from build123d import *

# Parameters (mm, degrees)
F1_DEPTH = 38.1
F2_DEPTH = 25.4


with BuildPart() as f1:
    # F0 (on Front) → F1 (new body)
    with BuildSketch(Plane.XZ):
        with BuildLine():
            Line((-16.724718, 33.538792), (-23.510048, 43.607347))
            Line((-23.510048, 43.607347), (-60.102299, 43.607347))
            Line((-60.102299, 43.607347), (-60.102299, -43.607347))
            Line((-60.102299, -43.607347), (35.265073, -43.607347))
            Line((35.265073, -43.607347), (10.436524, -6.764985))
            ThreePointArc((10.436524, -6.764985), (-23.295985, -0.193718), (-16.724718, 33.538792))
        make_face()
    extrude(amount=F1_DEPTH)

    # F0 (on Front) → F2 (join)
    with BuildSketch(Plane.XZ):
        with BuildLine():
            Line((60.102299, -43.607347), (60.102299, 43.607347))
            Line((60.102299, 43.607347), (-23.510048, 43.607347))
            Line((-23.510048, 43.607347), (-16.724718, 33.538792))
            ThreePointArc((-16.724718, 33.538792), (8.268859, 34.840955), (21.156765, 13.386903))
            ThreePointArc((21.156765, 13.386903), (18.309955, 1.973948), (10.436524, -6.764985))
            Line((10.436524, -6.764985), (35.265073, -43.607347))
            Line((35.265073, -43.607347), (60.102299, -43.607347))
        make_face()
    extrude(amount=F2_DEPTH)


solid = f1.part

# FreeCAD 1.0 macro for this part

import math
import FreeCAD as App
import Part
import Sketcher
from FreeCAD import Vector
Q = App.Units.Quantity

doc = App.newDocument("Part")
body = doc.addObject("PartDesign::Body", "Body")

# Sketch on XZ plane
sketch1 = body.newObject("Sketcher::SketchObject", "Sketch")
sketch1.AttachmentSupport = (doc.getObject("XZ_Plane"), [""])
sketch1.MapMode = "FlatFace"
sketch1.addGeometry([
    Part.LineSegment(Vector(-16.724718, 33.538792, 0), Vector(-23.510048, 43.607347, 0)),  # 0
    Part.LineSegment(Vector(-23.510048, 43.607347, 0), Vector(-60.102299, 43.607347, 0)),  # 1
    Part.LineSegment(Vector(-60.102299, 43.607347, 0), Vector(-60.102299, -43.607347, 0)),  # 2
    Part.LineSegment(Vector(-60.102299, -43.607347, 0), Vector(35.265073, -43.607347, 0)),  # 3
    Part.LineSegment(Vector(35.265073, -43.607347, 0), Vector(10.436524, -6.764985, 0)),  # 4
    Part.ArcOfCircle(Part.Circle(Vector(-3.144097, 13.386904, 0), Vector(0, 0, 1), 24.300862), math.radians(123.976545), math.radians(303.976545)),  # 5
], False)
sketch1.addConstraint([
    Sketcher.Constraint("Coincident", 0, 2, 1, 1),
    Sketcher.Constraint("Coincident", 1, 2, 2, 1),
    Sketcher.Constraint("Coincident", 2, 2, 3, 1),
    Sketcher.Constraint("Coincident", 3, 2, 4, 1),
    Sketcher.Constraint("Coincident", 4, 2, 5, 2),
    Sketcher.Constraint("Coincident", 5, 1, 0, 1),
    Sketcher.Constraint("Horizontal", 1),
    Sketcher.Constraint("Vertical", 2),
    Sketcher.Constraint("Horizontal", 3),
    Sketcher.Constraint("Parallel", 0, 4),
    Sketcher.Constraint("Radius", 5, Q("24.300862 mm")),
    Sketcher.Constraint("DistanceY", 5, 1, 0, 2, Q("0.3963998 in")),
    Sketcher.Constraint("DistanceX", 1, 2, 1, 1, Q("36.592251 mm")),
    Sketcher.Constraint("DistanceX", 1, 2, -1, 1, Q("60.102299 mm")),
    Sketcher.Constraint("Distance", 0, Q("12.14152 mm")),
    Sketcher.Constraint("DistanceX", 3, 1, 3, 2, Q("95.367372 mm")),
    Sketcher.Constraint("DistanceY", 2, 2, 2, 1, Q("87.214694 mm")),
    Sketcher.Constraint("DistanceX", 0, 2, 5, 3, Q("20.365951 mm")),
    Sketcher.Constraint("DistanceY", -1, 1, 5, 3, Q("13.386904 mm")),
])
pad1 = body.newObject("PartDesign::Pad", "Pad")
pad1.Profile = sketch1
pad1.Length = Q("1.5 in")

# Sketch on XZ plane
sketch2 = body.newObject("Sketcher::SketchObject", "Sketch001")
sketch2.AttachmentSupport = (doc.getObject("XZ_Plane"), [""])
sketch2.MapMode = "FlatFace"
sketch2.addGeometry([
    Part.LineSegment(Vector(60.102299, -43.607347, 0), Vector(60.102299, 43.607347, 0)),  # 0
    Part.LineSegment(Vector(60.102299, 43.607347, 0), Vector(-23.510048, 43.607347, 0)),  # 1
    Part.LineSegment(Vector(-23.510048, 43.607347, 0), Vector(-16.724718, 33.538792, 0)),  # 2
    Part.ArcOfCircle(Part.Circle(Vector(-3.144097, 13.386904, 0), Vector(0, 0, 1), 24.300862), math.radians(-0.000001), math.radians(123.976546)),  # 3
    Part.ArcOfCircle(Part.Circle(Vector(-3.144094, 13.386903, 0), Vector(0, 0, 1), 24.300859), math.radians(-56.023459), math.radians(0.000001)),  # 4
    Part.LineSegment(Vector(10.436524, -6.764985, 0), Vector(35.265073, -43.607347, 0)),  # 5
    Part.LineSegment(Vector(35.265073, -43.607347, 0), Vector(60.102299, -43.607347, 0)),  # 6
], False)
sketch2.addConstraint([
    Sketcher.Constraint("Coincident", 0, 2, 1, 1),
    Sketcher.Constraint("Coincident", 1, 2, 2, 1),
    Sketcher.Constraint("Coincident", 2, 2, 3, 2),
    Sketcher.Constraint("Tangent", 3, 1, 4, 2),
    Sketcher.Constraint("Coincident", 4, 1, 5, 1),
    Sketcher.Constraint("Coincident", 5, 2, 6, 1),
    Sketcher.Constraint("Coincident", 6, 2, 0, 1),
    Sketcher.Constraint("Vertical", 0),
    Sketcher.Constraint("Horizontal", 1),
    Sketcher.Constraint("Horizontal", 6),
    Sketcher.Constraint("Parallel", 2, 5),
    Sketcher.Constraint("Horizontal", 4, 3, 3, 1),
    Sketcher.Constraint("Radius", 3, Q("24.300862 mm")),
    Sketcher.Constraint("Radius", 4, Q("24.300859 mm")),
    Sketcher.Constraint("DistanceY", 2, 2, 1, 2, Q("0.3963998 in")),
    Sketcher.Constraint("DistanceX", -1, 1, 0, 2, Q("60.102299 mm")),
    Sketcher.Constraint("Distance", 2, Q("12.14152 mm")),
    Sketcher.Constraint("DistanceX", 1, 2, 1, 1, Q("83.612347 mm")),
    Sketcher.Constraint("DistanceX", 6, 1, 6, 2, Q("24.837226 mm")),
    Sketcher.Constraint("DistanceY", 0, 1, 0, 2, Q("87.214694 mm")),
    Sketcher.Constraint("DistanceX", 1, 2, 3, 3, Q("20.365951 mm")),
    Sketcher.Constraint("DistanceY", -1, 1, 3, 3, Q("13.386904 mm")),
])
pad2 = body.newObject("PartDesign::Pad", "Pad001")
pad2.Profile = sketch2
pad2.Length = Q("1 in")

doc.recompute()
